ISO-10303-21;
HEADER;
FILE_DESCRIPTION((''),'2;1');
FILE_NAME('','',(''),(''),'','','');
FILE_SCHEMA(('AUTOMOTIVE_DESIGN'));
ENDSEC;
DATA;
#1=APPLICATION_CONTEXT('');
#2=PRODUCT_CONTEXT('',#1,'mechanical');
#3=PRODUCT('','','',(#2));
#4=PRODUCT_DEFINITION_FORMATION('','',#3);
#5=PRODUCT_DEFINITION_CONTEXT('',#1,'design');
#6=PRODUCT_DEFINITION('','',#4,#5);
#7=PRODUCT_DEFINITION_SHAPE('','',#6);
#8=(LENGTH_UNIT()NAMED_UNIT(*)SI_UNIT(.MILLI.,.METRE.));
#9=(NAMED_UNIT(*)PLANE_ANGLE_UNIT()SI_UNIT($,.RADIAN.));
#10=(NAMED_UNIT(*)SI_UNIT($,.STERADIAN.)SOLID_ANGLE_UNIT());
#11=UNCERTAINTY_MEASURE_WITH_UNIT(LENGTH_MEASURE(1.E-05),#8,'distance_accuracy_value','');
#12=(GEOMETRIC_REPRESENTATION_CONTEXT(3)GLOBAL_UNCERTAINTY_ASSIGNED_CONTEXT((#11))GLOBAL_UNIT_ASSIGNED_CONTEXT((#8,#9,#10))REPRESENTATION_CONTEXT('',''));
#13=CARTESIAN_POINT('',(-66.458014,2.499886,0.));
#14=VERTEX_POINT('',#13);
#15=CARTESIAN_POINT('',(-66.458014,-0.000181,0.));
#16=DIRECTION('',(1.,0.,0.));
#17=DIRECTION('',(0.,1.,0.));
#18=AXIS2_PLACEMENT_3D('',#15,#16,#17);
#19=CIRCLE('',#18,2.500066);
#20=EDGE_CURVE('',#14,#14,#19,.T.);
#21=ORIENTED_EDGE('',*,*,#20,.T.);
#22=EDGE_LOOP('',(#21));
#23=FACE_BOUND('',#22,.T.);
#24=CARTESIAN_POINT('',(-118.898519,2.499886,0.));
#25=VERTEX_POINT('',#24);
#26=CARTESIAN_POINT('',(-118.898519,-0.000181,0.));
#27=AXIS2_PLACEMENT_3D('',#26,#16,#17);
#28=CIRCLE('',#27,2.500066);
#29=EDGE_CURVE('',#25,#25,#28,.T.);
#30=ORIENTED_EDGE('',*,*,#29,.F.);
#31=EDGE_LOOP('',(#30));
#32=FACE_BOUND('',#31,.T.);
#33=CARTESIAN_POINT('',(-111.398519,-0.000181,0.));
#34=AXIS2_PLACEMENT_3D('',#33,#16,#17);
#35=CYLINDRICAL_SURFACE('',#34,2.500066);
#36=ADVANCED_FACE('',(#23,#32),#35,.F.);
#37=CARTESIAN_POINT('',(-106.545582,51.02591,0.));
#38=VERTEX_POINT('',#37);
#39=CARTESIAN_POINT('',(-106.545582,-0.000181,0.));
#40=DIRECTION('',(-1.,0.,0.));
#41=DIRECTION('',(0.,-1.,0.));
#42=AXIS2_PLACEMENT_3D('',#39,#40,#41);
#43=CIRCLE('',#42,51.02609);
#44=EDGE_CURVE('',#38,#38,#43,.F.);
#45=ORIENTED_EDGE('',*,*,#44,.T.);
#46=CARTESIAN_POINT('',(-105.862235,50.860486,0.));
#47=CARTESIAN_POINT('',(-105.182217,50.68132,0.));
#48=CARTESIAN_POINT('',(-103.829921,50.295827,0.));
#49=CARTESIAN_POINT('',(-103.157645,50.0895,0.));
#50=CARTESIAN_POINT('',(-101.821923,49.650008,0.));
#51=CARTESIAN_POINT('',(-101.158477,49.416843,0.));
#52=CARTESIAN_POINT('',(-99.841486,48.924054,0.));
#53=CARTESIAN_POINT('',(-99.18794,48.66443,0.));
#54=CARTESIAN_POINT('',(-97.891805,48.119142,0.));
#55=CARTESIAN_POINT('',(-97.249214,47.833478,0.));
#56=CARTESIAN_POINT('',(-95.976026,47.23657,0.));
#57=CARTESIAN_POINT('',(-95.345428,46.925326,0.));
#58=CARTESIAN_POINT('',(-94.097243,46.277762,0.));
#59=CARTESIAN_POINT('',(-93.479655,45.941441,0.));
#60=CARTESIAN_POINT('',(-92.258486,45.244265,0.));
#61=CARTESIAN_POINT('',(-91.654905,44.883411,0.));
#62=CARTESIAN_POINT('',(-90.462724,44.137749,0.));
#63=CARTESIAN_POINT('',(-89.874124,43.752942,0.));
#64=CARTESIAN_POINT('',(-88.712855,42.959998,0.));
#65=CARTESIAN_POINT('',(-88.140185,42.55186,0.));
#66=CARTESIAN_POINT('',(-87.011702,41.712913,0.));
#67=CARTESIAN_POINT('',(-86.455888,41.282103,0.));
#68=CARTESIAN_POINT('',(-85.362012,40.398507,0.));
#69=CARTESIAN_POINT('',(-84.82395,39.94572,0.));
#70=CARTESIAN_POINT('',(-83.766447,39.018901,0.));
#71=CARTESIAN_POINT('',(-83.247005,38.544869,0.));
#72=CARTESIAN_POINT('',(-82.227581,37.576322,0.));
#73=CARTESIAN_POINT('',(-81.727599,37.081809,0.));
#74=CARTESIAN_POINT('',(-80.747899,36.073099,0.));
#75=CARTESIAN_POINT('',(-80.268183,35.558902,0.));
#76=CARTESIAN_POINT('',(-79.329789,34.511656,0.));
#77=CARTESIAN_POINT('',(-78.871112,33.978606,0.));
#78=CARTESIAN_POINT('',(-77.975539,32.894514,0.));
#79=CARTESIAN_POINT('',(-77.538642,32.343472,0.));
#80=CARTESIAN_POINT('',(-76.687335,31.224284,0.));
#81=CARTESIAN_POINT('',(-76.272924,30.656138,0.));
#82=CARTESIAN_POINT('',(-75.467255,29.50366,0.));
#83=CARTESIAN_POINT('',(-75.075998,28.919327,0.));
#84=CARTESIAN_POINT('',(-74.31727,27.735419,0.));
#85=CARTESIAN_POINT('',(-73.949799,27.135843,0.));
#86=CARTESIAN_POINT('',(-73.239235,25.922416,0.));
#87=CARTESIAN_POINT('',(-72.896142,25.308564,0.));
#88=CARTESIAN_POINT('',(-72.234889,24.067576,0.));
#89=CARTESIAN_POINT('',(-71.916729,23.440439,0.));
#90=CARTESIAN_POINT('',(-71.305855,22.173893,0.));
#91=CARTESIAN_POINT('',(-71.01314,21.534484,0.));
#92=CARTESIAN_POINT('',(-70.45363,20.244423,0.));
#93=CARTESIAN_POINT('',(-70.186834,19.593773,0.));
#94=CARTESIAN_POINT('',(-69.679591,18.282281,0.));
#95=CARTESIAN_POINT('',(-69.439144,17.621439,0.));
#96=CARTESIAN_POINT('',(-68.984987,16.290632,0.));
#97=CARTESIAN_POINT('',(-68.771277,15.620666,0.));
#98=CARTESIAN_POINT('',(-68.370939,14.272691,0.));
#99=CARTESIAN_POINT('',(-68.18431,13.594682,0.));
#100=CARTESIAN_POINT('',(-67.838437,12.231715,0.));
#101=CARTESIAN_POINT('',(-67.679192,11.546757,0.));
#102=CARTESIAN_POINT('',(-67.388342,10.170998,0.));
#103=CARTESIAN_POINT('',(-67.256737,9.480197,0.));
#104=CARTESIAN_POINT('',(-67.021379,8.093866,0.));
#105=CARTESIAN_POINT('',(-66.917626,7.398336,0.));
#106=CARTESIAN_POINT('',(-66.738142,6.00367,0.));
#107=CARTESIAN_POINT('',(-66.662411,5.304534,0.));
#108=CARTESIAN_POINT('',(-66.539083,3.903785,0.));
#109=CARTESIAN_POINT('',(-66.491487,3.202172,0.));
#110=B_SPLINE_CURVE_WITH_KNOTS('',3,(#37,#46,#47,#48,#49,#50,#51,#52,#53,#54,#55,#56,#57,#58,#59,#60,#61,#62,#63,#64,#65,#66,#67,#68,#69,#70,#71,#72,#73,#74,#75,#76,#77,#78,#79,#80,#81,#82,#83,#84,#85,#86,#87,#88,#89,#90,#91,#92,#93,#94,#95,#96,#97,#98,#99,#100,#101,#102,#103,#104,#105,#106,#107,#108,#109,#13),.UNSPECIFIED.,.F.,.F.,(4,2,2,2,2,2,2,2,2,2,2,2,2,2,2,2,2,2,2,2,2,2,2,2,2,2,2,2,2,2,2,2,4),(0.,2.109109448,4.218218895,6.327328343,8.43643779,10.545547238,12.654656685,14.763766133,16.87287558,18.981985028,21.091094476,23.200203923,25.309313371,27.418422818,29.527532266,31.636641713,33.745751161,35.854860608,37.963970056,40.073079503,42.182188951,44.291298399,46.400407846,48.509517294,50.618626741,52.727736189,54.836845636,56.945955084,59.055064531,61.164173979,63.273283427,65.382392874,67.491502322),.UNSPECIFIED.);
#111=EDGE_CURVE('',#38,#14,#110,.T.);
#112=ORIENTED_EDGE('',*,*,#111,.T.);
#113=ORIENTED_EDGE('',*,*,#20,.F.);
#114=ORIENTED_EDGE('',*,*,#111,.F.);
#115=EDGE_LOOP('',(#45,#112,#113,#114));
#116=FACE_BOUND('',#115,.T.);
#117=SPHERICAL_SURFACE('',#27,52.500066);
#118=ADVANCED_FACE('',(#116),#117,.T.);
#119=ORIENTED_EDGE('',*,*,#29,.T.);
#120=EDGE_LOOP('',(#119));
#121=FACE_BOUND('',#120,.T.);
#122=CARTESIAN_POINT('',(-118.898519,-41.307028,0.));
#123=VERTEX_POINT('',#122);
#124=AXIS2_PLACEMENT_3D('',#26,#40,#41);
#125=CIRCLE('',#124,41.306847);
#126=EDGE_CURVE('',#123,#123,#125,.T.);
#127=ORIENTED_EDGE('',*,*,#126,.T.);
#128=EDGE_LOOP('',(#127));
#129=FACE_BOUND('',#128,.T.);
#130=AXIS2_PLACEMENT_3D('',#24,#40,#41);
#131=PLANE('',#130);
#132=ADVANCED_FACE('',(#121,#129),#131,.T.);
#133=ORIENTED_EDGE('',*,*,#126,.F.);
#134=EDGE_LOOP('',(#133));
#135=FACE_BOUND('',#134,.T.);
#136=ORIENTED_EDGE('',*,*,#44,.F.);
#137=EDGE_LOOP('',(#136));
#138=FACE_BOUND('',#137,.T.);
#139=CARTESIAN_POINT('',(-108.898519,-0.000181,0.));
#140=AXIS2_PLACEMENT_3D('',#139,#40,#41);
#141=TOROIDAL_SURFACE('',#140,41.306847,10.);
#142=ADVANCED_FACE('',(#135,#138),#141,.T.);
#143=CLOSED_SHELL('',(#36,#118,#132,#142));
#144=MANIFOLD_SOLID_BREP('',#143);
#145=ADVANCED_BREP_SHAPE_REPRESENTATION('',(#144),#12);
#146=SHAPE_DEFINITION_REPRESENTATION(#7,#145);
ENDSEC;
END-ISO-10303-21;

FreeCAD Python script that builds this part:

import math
import FreeCAD as App
import Part
import Sketcher

V = App.Vector
Q = App.Units.Quantity


def edges_at(feature, points):
    """Names of the edges that pass closest to the given points."""
    edges = feature.Shape.Edges
    near = lambda p: min(range(len(edges)), key=lambda i: edges[i].distToShape(Part.Vertex(*p))[0])
    return sorted({f"Edge{near(p) + 1}" for p in points})

doc = App.newDocument("Part")
params = doc.addObject("Spreadsheet::Sheet", "Params")
for row, (alias, value) in enumerate([
    ("sketch1_height", "50 mm"),
    ("revolution_angle", "360 deg"),
    ("fillet_radius", "10 mm"),
], start=1):
    params.set(f"A{row}", alias)
    params.set(f"B{row}", "=" + value)
    params.setAlias(f"B{row}", alias)

body = doc.addObject("PartDesign::Body", "Body")

sketch1 = body.newObject("Sketcher::SketchObject", "Sketch")
sketch1.AttachmentSupport = (doc.getObject("XY_Plane"), [""])
sketch1.MapMode = "FlatFace"
sketch1.addGeometry([
    Part.LineSegment(V(-119, 2, 0), V(-66, 2, 0)),
    Part.ArcOfCircle(Part.Circle(V(-119, 0, 0), V(0, 0, 1), 53), math.radians(3), math.radians(90)),
    Part.LineSegment(V(-119, 52, 0), V(-119, 2, 0)),
], False)
sketch1.addGeometry(Part.LineSegment(V(-66, 0, 0), V(-119, 0, 0)), True)
sketch1.addConstraint([
    Sketcher.Constraint("Coincident", 0, 2, 1, 1),
    Sketcher.Constraint("Coincident", 1, 2, 2, 1),
    Sketcher.Constraint("Coincident", 2, 2, 0, 1),
    Sketcher.Constraint("Horizontal", 0),
    Sketcher.Constraint("Vertical", 2),
    Sketcher.Constraint("Horizontal", 3),
    Sketcher.Constraint("Coincident", 3, 2, 1, 3),
    Sketcher.Constraint("Vertical", 0, 2, 3, 1),
    Sketcher.Constraint("Vertical", 2, 2, 3, 2),
    Sketcher.Constraint("DistanceY", 2, 2, 2, 1, Q("50 mm")),
    Sketcher.Constraint("Radius", 1, Q("52.500066 mm")),
    Sketcher.Constraint("DistanceX", 1, 3, -1, 1, Q("118.898519 mm")),
    Sketcher.Constraint("DistanceY", 1, 3, -1, 1, Q("0.000181 mm")),
])
sketch1.setExpression("Constraints[9]", "Params.sketch1_height")
revolution = body.newObject("PartDesign::Revolution", "Revolution")
revolution.Profile = sketch1
revolution.ReferenceAxis = (sketch1, ["Axis0"])
revolution.setExpression("Angle", "Params.revolution_angle")
doc.recompute()

fillet = body.newObject("PartDesign::Fillet", "Fillet")
fillet.Base = (revolution, edges_at(revolution, [(-118.899, -52.5, 0)]))
fillet.setExpression("Radius", "Params.fillet_radius")

doc.recompute()
